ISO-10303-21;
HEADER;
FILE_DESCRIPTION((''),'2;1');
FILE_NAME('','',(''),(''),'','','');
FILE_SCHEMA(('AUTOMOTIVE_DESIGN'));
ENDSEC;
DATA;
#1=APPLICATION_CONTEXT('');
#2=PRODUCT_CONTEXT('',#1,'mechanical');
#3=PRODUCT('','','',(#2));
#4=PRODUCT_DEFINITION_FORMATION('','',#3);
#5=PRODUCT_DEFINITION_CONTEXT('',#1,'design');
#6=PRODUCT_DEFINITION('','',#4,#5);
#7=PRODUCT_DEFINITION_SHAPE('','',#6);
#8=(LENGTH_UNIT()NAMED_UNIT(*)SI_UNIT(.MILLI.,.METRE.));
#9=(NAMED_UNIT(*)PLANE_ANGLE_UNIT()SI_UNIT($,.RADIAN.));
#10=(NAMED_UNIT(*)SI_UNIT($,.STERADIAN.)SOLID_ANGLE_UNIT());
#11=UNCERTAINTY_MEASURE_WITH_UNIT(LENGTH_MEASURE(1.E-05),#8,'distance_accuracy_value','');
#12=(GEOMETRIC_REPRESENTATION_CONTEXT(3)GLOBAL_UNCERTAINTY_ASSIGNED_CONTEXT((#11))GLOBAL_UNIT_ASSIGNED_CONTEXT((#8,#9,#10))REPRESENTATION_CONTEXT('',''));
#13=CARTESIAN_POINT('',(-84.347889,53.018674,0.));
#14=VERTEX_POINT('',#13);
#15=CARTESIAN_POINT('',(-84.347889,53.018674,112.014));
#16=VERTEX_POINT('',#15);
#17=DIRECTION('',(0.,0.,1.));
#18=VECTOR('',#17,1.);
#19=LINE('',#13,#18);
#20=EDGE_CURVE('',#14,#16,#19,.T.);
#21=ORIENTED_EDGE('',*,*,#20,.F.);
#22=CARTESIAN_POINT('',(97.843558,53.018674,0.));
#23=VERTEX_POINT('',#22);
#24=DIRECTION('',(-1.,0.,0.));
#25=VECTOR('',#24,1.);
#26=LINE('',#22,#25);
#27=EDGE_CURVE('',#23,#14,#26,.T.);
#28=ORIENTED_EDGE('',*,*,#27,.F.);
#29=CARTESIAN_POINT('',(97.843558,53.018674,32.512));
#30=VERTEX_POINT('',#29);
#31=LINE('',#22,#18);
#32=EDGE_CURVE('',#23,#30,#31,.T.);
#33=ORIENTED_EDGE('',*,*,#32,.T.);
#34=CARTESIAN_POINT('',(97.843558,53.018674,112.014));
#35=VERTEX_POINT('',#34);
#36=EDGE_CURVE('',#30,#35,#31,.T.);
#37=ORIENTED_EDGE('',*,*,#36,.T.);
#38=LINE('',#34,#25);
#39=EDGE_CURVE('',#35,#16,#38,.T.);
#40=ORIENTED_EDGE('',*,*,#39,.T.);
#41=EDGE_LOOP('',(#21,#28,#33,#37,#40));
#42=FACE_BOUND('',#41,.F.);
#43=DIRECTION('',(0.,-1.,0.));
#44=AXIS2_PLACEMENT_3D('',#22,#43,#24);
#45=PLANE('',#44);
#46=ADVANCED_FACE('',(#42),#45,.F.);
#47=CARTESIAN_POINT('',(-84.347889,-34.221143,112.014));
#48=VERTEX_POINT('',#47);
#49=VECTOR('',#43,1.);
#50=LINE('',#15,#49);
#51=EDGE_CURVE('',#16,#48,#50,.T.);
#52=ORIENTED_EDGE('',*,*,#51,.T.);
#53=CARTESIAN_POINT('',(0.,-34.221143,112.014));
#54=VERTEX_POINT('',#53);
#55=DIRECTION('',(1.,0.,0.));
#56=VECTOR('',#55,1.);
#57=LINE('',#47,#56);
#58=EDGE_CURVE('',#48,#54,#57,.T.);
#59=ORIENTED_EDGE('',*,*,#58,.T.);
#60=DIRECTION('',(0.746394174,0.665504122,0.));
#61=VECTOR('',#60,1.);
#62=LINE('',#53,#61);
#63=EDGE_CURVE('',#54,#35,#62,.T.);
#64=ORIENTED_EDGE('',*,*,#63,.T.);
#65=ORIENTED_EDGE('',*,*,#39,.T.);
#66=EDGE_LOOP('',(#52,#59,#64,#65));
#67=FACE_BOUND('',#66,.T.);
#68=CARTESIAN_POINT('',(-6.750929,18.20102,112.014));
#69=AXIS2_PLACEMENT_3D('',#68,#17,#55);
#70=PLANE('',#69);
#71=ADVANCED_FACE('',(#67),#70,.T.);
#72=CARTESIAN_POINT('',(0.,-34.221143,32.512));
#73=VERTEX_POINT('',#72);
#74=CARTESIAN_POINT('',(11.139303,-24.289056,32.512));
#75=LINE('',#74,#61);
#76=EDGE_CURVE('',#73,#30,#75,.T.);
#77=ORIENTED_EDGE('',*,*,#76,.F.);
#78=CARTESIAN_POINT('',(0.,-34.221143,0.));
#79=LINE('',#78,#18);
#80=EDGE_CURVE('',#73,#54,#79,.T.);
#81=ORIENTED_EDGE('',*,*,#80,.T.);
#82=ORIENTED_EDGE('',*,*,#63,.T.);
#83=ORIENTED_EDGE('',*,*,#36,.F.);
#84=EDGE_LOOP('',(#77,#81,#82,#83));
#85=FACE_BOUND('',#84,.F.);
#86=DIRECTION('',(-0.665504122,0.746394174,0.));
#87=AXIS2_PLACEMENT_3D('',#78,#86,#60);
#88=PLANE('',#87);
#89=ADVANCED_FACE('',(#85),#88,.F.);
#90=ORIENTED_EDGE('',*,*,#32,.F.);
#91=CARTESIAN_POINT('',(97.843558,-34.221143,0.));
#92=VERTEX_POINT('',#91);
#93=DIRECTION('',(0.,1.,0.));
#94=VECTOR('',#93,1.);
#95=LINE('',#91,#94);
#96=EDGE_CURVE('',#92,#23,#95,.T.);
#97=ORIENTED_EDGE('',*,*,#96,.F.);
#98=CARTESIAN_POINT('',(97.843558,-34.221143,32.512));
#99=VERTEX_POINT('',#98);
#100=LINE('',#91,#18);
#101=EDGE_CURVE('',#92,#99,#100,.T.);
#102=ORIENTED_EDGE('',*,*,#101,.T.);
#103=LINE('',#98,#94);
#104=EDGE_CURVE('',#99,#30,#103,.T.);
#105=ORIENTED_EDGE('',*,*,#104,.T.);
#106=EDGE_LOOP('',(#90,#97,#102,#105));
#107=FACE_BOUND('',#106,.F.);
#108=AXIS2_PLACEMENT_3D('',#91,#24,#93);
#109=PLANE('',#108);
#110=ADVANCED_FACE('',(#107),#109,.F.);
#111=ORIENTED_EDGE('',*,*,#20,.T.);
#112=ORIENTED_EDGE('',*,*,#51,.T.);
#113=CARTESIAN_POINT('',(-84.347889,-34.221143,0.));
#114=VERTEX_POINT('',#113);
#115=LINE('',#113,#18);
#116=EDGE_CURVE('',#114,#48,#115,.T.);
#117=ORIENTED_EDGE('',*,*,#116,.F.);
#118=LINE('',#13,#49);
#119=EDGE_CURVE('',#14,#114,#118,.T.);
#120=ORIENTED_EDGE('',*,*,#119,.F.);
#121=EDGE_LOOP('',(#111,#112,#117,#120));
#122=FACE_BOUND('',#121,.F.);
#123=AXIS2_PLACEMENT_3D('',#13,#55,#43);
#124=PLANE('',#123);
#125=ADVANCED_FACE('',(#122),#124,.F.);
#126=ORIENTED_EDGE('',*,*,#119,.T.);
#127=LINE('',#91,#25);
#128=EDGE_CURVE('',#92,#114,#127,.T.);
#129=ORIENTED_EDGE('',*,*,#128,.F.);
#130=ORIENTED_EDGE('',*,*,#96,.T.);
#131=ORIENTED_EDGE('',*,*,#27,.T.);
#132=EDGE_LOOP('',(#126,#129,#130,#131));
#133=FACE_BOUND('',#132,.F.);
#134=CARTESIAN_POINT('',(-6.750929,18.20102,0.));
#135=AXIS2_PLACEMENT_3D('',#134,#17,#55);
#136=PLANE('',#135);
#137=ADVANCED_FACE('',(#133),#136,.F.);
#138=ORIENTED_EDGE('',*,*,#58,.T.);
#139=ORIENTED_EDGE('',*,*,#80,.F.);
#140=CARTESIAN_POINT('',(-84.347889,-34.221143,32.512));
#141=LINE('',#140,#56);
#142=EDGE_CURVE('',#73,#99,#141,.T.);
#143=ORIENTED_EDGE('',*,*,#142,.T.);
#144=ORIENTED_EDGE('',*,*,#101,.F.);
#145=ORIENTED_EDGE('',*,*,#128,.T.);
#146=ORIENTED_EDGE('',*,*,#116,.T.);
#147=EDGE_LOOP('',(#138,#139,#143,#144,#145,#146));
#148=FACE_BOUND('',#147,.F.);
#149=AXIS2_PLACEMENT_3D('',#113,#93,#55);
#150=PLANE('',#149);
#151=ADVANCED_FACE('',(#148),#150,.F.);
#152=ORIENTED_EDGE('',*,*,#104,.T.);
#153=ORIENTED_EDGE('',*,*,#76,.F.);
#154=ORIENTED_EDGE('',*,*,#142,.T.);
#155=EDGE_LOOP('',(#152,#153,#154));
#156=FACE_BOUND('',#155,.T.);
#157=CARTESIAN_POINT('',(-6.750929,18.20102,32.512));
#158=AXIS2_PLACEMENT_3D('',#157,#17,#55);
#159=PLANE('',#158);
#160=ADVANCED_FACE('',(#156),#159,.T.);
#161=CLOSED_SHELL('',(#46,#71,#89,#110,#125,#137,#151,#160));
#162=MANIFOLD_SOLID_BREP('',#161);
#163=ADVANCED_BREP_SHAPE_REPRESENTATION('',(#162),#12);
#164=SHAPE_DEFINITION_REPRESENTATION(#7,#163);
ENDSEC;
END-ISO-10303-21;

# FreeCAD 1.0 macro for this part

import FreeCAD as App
import Part
import Sketcher
Q = App.Units.Quantity

doc = App.newDocument("Part")
body = doc.addObject("PartDesign::Body", "Body")

sketch1 = doc.addObject("Sketcher::SketchObject", "Sketch")
body.addObject(sketch1)
sketch1.AttachmentSupport = (doc.XY_Plane, [""])
sketch1.MapMode = "FlatFace"
sketch1.addGeometry(Part.LineSegment(App.Vector(98, 53, 0), App.Vector(-84, 53, 0)), False)
sketch1.addGeometry(Part.LineSegment(App.Vector(-84, 53, 0), App.Vector(-84, -34, 0)), False)
sketch1.addGeometry(Part.LineSegment(App.Vector(-84, -34, 0), App.Vector(0, -34, 0)), False)
sketch1.addGeometry(Part.LineSegment(App.Vector(0, -34, 0), App.Vector(98, 53, 0)), False)
sketch1.addConstraint(Sketcher.Constraint("Coincident", 0, 2, 1, 1))
sketch1.addConstraint(Sketcher.Constraint("Coincident", 1, 2, 2, 1))
sketch1.addConstraint(Sketcher.Constraint("Coincident", 2, 2, 3, 1))
sketch1.addConstraint(Sketcher.Constraint("Coincident", 3, 2, 0, 1))
sketch1.addConstraint(Sketcher.Constraint("Horizontal", 0))
sketch1.addConstraint(Sketcher.Constraint("Vertical", 1))
sketch1.addConstraint(Sketcher.Constraint("Horizontal", 2))
sketch1.addConstraint(Sketcher.Constraint("PointOnObject", 2, 2, -2))
sketch1.addConstraint(Sketcher.Constraint("DistanceX", 2, 1, 2, 2, Q("84.347889 mm")))
sketch1.addConstraint(Sketcher.Constraint("Distance", 3, Q("131.08832 mm")))
sketch1.addConstraint(Sketcher.Constraint("DistanceX", 0, 2, 0, 1, Q("182.191447 mm")))
sketch1.addConstraint(Sketcher.Constraint("DistanceY", -1, 1, 0, 2, Q("53.018674 mm")))
pad1 = doc.addObject("PartDesign::Pad", "Pad")
body.addObject(pad1)
pad1.Profile = sketch1
pad1.Length = Q("4.41 in")

sketch2 = doc.addObject("Sketcher::SketchObject", "Sketch001")
body.addObject(sketch2)
sketch2.AttachmentSupport = (doc.XY_Plane, [""])
sketch2.MapMode = "FlatFace"
sketch2.addGeometry(Part.LineSegment(App.Vector(98, 53, 0), App.Vector(-84, 53, 0)), False)
sketch2.addGeometry(Part.LineSegment(App.Vector(-84, 53, 0), App.Vector(-84, -34, 0)), False)
sketch2.addGeometry(Part.LineSegment(App.Vector(-84, -34, 0), App.Vector(98, -34, 0)), False)
sketch2.addGeometry(Part.LineSegment(App.Vector(98, -34, 0), App.Vector(98, 53, 0)), False)
sketch2.addConstraint(Sketcher.Constraint("Coincident", 0, 2, 1, 1))
sketch2.addConstraint(Sketcher.Constraint("Coincident", 1, 2, 2, 1))
sketch2.addConstraint(Sketcher.Constraint("Coincident", 2, 2, 3, 1))
sketch2.addConstraint(Sketcher.Constraint("Coincident", 3, 2, 0, 1))
sketch2.addConstraint(Sketcher.Constraint("Horizontal", 0))
sketch2.addConstraint(Sketcher.Constraint("Vertical", 1))
sketch2.addConstraint(Sketcher.Constraint("Horizontal", 2))
sketch2.addConstraint(Sketcher.Constraint("Vertical", 3))
sketch2.addConstraint(Sketcher.Constraint("DistanceX", 0, 2, 0, 1, Q("182.191447 mm")))
sketch2.addConstraint(Sketcher.Constraint("DistanceY", 1, 2, 1, 1, Q("87.239817 mm")))
sketch2.addConstraint(Sketcher.Constraint("DistanceX", 0, 2, -1, 1, Q("84.347889 mm")))
sketch2.addConstraint(Sketcher.Constraint("DistanceY", -1, 1, 0, 2, Q("53.018674 mm")))
pad2 = doc.addObject("PartDesign::Pad", "Pad001")
body.addObject(pad2)
pad2.Profile = sketch2
pad2.Length = Q("1.28 in")

doc.recompute()
